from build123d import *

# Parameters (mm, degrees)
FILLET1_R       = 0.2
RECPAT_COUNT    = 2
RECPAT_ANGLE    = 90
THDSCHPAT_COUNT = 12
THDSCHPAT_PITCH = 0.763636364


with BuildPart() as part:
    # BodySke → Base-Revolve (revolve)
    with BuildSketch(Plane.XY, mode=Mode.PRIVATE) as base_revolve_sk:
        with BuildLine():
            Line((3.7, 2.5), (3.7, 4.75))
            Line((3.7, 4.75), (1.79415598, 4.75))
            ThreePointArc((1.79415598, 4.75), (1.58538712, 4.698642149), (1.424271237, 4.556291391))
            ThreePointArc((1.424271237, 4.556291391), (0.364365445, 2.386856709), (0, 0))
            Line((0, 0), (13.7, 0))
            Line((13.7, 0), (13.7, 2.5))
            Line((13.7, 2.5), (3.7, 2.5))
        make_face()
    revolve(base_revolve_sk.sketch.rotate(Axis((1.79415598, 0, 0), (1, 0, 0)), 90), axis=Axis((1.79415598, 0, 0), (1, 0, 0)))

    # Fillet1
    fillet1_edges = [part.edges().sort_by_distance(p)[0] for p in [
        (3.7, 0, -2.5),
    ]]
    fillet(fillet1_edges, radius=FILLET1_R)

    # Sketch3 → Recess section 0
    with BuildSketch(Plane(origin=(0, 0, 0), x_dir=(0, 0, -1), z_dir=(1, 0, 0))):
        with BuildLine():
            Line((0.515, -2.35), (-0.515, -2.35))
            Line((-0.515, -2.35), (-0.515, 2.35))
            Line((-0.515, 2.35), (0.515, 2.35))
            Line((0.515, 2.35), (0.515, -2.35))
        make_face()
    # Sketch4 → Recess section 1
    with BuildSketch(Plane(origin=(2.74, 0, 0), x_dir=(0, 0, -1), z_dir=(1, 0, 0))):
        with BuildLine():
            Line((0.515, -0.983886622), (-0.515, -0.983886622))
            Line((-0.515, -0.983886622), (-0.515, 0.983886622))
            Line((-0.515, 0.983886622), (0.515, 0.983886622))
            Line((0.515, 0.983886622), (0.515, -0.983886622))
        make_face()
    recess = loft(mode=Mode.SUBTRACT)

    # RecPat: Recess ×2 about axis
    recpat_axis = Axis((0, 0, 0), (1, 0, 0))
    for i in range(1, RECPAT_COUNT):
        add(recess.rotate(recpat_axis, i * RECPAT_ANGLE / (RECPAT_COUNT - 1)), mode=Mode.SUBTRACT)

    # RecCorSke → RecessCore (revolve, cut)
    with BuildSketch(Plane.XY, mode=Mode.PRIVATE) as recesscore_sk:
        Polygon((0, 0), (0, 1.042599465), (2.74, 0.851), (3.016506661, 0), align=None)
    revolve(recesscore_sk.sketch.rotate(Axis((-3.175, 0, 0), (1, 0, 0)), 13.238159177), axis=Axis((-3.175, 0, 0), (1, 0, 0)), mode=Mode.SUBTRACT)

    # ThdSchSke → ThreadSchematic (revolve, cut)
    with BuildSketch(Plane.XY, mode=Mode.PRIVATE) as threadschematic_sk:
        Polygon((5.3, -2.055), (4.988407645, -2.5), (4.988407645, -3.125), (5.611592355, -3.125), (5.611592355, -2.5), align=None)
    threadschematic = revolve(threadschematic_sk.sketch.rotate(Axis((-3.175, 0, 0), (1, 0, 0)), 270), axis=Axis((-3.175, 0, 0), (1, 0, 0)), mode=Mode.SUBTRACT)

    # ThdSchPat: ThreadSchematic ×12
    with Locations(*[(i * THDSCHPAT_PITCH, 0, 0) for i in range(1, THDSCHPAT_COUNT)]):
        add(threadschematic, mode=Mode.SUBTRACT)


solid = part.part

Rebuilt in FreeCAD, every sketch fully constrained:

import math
import FreeCAD as App
import Part
import Sketcher
from FreeCAD import Vector
Q = App.Units.Quantity


def edges_at(feature, points):
    """Names of the edges that pass closest to the given points."""
    edges = feature.Shape.Edges
    near = lambda p: min(range(len(edges)), key=lambda i: edges[i].distToShape(Part.Vertex(*p))[0])
    return sorted({f"Edge{near(p) + 1}" for p in points})

doc = App.newDocument("Part")
body = doc.addObject("PartDesign::Body", "Body")

# Sketch on XY plane
sketch1 = doc.addObject("Sketcher::SketchObject", "Sketch")
body.addObject(sketch1)
sketch1.AttachmentSupport = (doc.XY_Plane, [""])
sketch1.MapMode = "FlatFace"
sketch1.addGeometry([
    Part.LineSegment(Vector(3.7, 2.5, 0), Vector(3.7, 4.75, 0)),  # 0
    Part.LineSegment(Vector(3.7, 4.75, 0), Vector(1.79, 4.75, 0)),  # 1
    Part.ArcOfCircle(Part.Circle(Vector(1.79, 4.3, 0), Vector(0, 0, 1), 0.45), math.radians(90), math.radians(145)),  # 2
    Part.ArcOfCircle(Part.Circle(Vector(8, 0, 0), Vector(0, 0, 1), 8), math.radians(145), math.radians(180)),  # 3
    Part.LineSegment(Vector(0, 0, 0), Vector(13.7, 0, 0)),  # 4
    Part.LineSegment(Vector(13.7, 0, 0), Vector(13.7, 2.5, 0)),  # 5
    Part.LineSegment(Vector(13.7, 2.5, 0), Vector(3.7, 2.5, 0)),  # 6
], False)
sketch1.addConstraint([
    Sketcher.Constraint("Coincident", 0, 2, 1, 1),
    Sketcher.Constraint("Tangent", 1, 2, 2, 1),
    Sketcher.Constraint("Tangent", 2, 2, 3, 1),
    Sketcher.Constraint("Coincident", 3, 2, 4, 1),
    Sketcher.Constraint("Coincident", 4, 2, 5, 1),
    Sketcher.Constraint("Coincident", 5, 2, 6, 1),
    Sketcher.Constraint("Coincident", 6, 2, 0, 1),
    Sketcher.Constraint("Vertical", 0),
    Sketcher.Constraint("Horizontal", 1),
    Sketcher.Constraint("Horizontal", 4),
    Sketcher.Constraint("Vertical", 5),
    Sketcher.Constraint("Horizontal", 6),
    Sketcher.Constraint("Coincident", 3, 2, -1, 1),
    Sketcher.Constraint("PointOnObject", 3, 3, -1),
    Sketcher.Constraint("Radius", 3, Q("8 mm")),
    Sketcher.Constraint("DistanceX", 6, 2, 6, 1, Q("10 mm")),
    Sketcher.Constraint("Radius", 2, Q("0.45 mm")),
    Sketcher.Constraint("DistanceX", 4, 1, 4, 2, Q("13.7 mm")),
    Sketcher.Constraint("DistanceY", 5, 1, 5, 2, Q("2.5 mm")),
    Sketcher.Constraint("DistanceY", 0, 1, 0, 2, Q("2.25 mm")),
])
revolution = doc.addObject("PartDesign::Revolution", "Revolution")
body.addObject(revolution)
revolution.Profile = sketch1
revolution.ReferenceAxis = (sketch1, ["H_Axis"])
revolution.Angle = 360
doc.recompute()

fillet = doc.addObject("PartDesign::Fillet", "Fillet")
body.addObject(fillet)
fillet.Base = (revolution, edges_at(revolution, [(3.7, 0, -2.5)]))
fillet.Radius = 0.2

# Sketch on YZ plane
sketch2 = doc.addObject("Sketcher::SketchObject", "Sketch001")
body.addObject(sketch2)
sketch2.AttachmentSupport = (doc.YZ_Plane, [""])
sketch2.MapMode = "FlatFace"
sketch2.addGeometry([
    Part.LineSegment(Vector(-2.4, 0.5, 0), Vector(-2.4, -0.5, 0)),
    Part.LineSegment(Vector(-2.4, -0.5, 0), Vector(2.4, -0.5, 0)),
    Part.LineSegment(Vector(2.4, -0.5, 0), Vector(2.4, 0.5, 0)),
    Part.LineSegment(Vector(2.4, 0.5, 0), Vector(-2.4, 0.5, 0)),
], False)
sketch2.addConstraint([
    Sketcher.Constraint("Coincident", 0, 2, 1, 1),
    Sketcher.Constraint("Coincident", 1, 2, 2, 1),
    Sketcher.Constraint("Coincident", 2, 2, 3, 1),
    Sketcher.Constraint("Coincident", 3, 2, 0, 1),
    Sketcher.Constraint("Vertical", 0),
    Sketcher.Constraint("Horizontal", 1),
    Sketcher.Constraint("Vertical", 2),
    Sketcher.Constraint("Horizontal", 3),
    Sketcher.Constraint("Symmetric", 0, 2, 2, 2, -1, 1),
    Sketcher.Constraint("DistanceX", 1, 1, 1, 2, Q("4.7 mm")),
    Sketcher.Constraint("DistanceY", 0, 2, 0, 1, Q("1.03 mm")),
])

# Sketch on YZ plane
sketch3 = doc.addObject("Sketcher::SketchObject", "Sketch002")
body.addObject(sketch3)
sketch3.AttachmentSupport = (doc.YZ_Plane, [""])
sketch3.MapMode = "FlatFace"
sketch3.AttachmentOffset = App.Placement(Vector(0, 0, 2.74), App.Rotation())
sketch3.addGeometry([
    Part.LineSegment(Vector(-1, 0.5, 0), Vector(-1, -0.5, 0)),
    Part.LineSegment(Vector(-1, -0.5, 0), Vector(1, -0.5, 0)),
    Part.LineSegment(Vector(1, -0.5, 0), Vector(1, 0.5, 0)),
    Part.LineSegment(Vector(1, 0.5, 0), Vector(-1, 0.5, 0)),
], False)
sketch3.addConstraint([
    Sketcher.Constraint("Coincident", 0, 2, 1, 1),
    Sketcher.Constraint("Coincident", 1, 2, 2, 1),
    Sketcher.Constraint("Coincident", 2, 2, 3, 1),
    Sketcher.Constraint("Coincident", 3, 2, 0, 1),
    Sketcher.Constraint("Vertical", 0),
    Sketcher.Constraint("Horizontal", 1),
    Sketcher.Constraint("Vertical", 2),
    Sketcher.Constraint("Horizontal", 3),
    Sketcher.Constraint("Symmetric", 0, 2, 2, 2, -1, 1),
    Sketcher.Constraint("DistanceY", 0, 2, 0, 1, Q("1.03 mm")),
    Sketcher.Constraint("DistanceX", 1, 1, 1, 2, Q("1.967773 mm")),
])

subtractiveloft = doc.addObject("PartDesign::SubtractiveLoft", "SubtractiveLoft")
body.addObject(subtractiveloft)
subtractiveloft.Profile = sketch2
subtractiveloft.Sections = [sketch3]
doc.recompute()

polarpattern = doc.addObject("PartDesign::PolarPattern", "PolarPattern")
body.addObject(polarpattern)
polarpattern.Originals = [subtractiveloft]
polarpattern.Axis = (doc.X_Axis, [""])
polarpattern.Angle = 90
polarpattern.Occurrences = 2
body.Tip = polarpattern

# Sketch on XY plane
sketch4 = doc.addObject("Sketcher::SketchObject", "Sketch003")
body.addObject(sketch4)
sketch4.AttachmentSupport = (doc.XY_Plane, [""])
sketch4.MapMode = "FlatFace"
sketch4.addGeometry([
    Part.LineSegment(Vector(0, 1, 0), Vector(0, 0, 0)),
    Part.LineSegment(Vector(0, 0, 0), Vector(3, 0, 0)),
    Part.LineSegment(Vector(3, 0, 0), Vector(2.7, 0.9, 0)),
    Part.LineSegment(Vector(2.7, 0.9, 0), Vector(0, 1, 0)),
], False)
sketch4.addConstraint([
    Sketcher.Constraint("Coincident", 0, 2, 1, 1),
    Sketcher.Constraint("Coincident", 1, 2, 2, 1),
    Sketcher.Constraint("Coincident", 2, 2, 3, 1),
    Sketcher.Constraint("Coincident", 3, 2, 0, 1),
    Sketcher.Constraint("Vertical", 0),
    Sketcher.Constraint("Horizontal", 1),
    Sketcher.Constraint("Coincident", 0, 2, -1, 1),
    Sketcher.Constraint("Angle", 2, Q("108 deg")),
    Sketcher.Constraint("Angle", 3, Q("176 deg")),
    Sketcher.Constraint("DistanceX", -1, 1, 2, 2, Q("2.74 mm")),
    Sketcher.Constraint("DistanceY", 0, 2, 0, 1, Q("1.042599 mm")),
])
groove = doc.addObject("PartDesign::Groove", "Groove")
body.addObject(groove)
groove.Profile = sketch4
groove.ReferenceAxis = (sketch4, ["H_Axis"])
groove.Angle = 360

# Sketch on XY plane
sketch5 = doc.addObject("Sketcher::SketchObject", "Sketch004")
body.addObject(sketch5)
sketch5.AttachmentSupport = (doc.XY_Plane, [""])
sketch5.MapMode = "FlatFace"
sketch5.addGeometry([
    Part.LineSegment(Vector(5.3, -2.1, 0), Vector(5, -2.5, 0)),  # 0
    Part.LineSegment(Vector(5, -2.5, 0), Vector(5, -3.1, 0)),  # 1
    Part.LineSegment(Vector(5, -3.1, 0), Vector(5.6, -3.1, 0)),  # 2
    Part.LineSegment(Vector(5.6, -3.1, 0), Vector(5.6, -2.5, 0)),  # 3
    Part.LineSegment(Vector(5.6, -2.5, 0), Vector(5.3, -2.1, 0)),  # 4
], False)
sketch5.addConstraint([
    Sketcher.Constraint("Coincident", 0, 2, 1, 1),
    Sketcher.Constraint("Coincident", 1, 2, 2, 1),
    Sketcher.Constraint("Coincident", 2, 2, 3, 1),
    Sketcher.Constraint("Coincident", 3, 2, 4, 1),
    Sketcher.Constraint("Coincident", 4, 2, 0, 1),
    Sketcher.Constraint("Vertical", 1),
    Sketcher.Constraint("Horizontal", 2),
    Sketcher.Constraint("Vertical", 3),
    Sketcher.Constraint("Horizontal", 0, 2, 3, 2),
    Sketcher.Constraint("Equal", 0, 4),
    Sketcher.Constraint("Angle", 0, Q("-125 deg")),
    Sketcher.Constraint("DistanceY", 0, 2, -1, 1, Q("2.5 mm")),
    Sketcher.Constraint("DistanceX", -1, 1, 4, 2, Q("5.3 mm")),
    Sketcher.Constraint("DistanceY", 1, 2, 1, 1, Q("0.625 mm")),
    Sketcher.Constraint("DistanceY", 1, 2, 4, 2, Q("1.07 mm")),
])
groove2 = doc.addObject("PartDesign::Groove", "Groove001")
body.addObject(groove2)
groove2.Profile = sketch5
groove2.ReferenceAxis = (sketch5, ["H_Axis"])
groove2.Angle = 360
doc.recompute()

linearpattern = doc.addObject("PartDesign::LinearPattern", "LinearPattern")
body.addObject(linearpattern)
linearpattern.Originals = [groove2]
linearpattern.Direction = (doc.X_Axis, [""])
linearpattern.Mode = "offset"
linearpattern.Offset = 0.763636
linearpattern.Occurrences = 12
body.Tip = linearpattern

doc.recompute()
